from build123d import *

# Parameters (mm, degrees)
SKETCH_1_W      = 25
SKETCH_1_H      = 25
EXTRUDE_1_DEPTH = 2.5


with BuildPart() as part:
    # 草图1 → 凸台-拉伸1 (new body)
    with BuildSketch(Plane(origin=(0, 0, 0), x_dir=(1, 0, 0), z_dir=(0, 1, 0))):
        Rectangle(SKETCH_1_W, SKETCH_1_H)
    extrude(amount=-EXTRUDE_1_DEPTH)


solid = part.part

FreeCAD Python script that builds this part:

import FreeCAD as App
import Part
import Sketcher
from FreeCAD import Vector


def add_polygon(sketch, points):
    """Adds a closed chain of lines whose ends are joined by coincident constraints."""
    first, n = sketch.GeometryCount, len(points)
    for a, b in zip(points, points[1:] + points[:1]):
        sketch.addGeometry(Part.LineSegment(App.Vector(*a, 0), App.Vector(*b, 0)), False)
    for i in range(n):
        sketch.addConstraint(Sketcher.Constraint("Coincident", first + i, 2, first + (i + 1) % n, 1))

doc = App.newDocument("Part")
params = doc.addObject("Spreadsheet::Sheet", "Params")
for row, (alias, value) in enumerate([
    ("sketch1_width", "25 mm"),
    ("pad1_length", "2.5 mm"),
], start=1):
    params.set(f"A{row}", alias)
    params.set(f"B{row}", "=" + value)
    params.setAlias(f"B{row}", alias)

body = doc.addObject("PartDesign::Body", "Body")

# Sketch on XZ plane
sketch1 = body.newObject("Sketcher::SketchObject", "Sketch")
sketch1.AttachmentSupport = (doc.getObject("XZ_Plane"), [""])
sketch1.MapMode = "FlatFace"
add_polygon(sketch1, [(-12, -12), (-12, 12), (12, 12), (12, -12)])  # lines 0-3
sketch1.addConstraint(Sketcher.Constraint("Vertical", 0))
sketch1.addConstraint(Sketcher.Constraint("Horizontal", 1))
sketch1.addConstraint(Sketcher.Constraint("Vertical", 2))
sketch1.addConstraint(Sketcher.Constraint("Horizontal", 3))
sketch1.addConstraint(Sketcher.Constraint("Symmetric", 0, 2, 2, 2, -1, 1))
sketch1.addConstraint(Sketcher.Constraint("Equal", 3, 0))
sketch1.addConstraint(Sketcher.Constraint("DistanceX", 1, 1, 1, 2, 25.0))
sketch1.setExpression("Constraints[10]", "Params.sketch1_width")
pad1 = body.newObject("PartDesign::Pad", "Pad")
pad1.Profile = sketch1
pad1.setExpression("Length", "Params.pad1_length")

doc.recompute()
